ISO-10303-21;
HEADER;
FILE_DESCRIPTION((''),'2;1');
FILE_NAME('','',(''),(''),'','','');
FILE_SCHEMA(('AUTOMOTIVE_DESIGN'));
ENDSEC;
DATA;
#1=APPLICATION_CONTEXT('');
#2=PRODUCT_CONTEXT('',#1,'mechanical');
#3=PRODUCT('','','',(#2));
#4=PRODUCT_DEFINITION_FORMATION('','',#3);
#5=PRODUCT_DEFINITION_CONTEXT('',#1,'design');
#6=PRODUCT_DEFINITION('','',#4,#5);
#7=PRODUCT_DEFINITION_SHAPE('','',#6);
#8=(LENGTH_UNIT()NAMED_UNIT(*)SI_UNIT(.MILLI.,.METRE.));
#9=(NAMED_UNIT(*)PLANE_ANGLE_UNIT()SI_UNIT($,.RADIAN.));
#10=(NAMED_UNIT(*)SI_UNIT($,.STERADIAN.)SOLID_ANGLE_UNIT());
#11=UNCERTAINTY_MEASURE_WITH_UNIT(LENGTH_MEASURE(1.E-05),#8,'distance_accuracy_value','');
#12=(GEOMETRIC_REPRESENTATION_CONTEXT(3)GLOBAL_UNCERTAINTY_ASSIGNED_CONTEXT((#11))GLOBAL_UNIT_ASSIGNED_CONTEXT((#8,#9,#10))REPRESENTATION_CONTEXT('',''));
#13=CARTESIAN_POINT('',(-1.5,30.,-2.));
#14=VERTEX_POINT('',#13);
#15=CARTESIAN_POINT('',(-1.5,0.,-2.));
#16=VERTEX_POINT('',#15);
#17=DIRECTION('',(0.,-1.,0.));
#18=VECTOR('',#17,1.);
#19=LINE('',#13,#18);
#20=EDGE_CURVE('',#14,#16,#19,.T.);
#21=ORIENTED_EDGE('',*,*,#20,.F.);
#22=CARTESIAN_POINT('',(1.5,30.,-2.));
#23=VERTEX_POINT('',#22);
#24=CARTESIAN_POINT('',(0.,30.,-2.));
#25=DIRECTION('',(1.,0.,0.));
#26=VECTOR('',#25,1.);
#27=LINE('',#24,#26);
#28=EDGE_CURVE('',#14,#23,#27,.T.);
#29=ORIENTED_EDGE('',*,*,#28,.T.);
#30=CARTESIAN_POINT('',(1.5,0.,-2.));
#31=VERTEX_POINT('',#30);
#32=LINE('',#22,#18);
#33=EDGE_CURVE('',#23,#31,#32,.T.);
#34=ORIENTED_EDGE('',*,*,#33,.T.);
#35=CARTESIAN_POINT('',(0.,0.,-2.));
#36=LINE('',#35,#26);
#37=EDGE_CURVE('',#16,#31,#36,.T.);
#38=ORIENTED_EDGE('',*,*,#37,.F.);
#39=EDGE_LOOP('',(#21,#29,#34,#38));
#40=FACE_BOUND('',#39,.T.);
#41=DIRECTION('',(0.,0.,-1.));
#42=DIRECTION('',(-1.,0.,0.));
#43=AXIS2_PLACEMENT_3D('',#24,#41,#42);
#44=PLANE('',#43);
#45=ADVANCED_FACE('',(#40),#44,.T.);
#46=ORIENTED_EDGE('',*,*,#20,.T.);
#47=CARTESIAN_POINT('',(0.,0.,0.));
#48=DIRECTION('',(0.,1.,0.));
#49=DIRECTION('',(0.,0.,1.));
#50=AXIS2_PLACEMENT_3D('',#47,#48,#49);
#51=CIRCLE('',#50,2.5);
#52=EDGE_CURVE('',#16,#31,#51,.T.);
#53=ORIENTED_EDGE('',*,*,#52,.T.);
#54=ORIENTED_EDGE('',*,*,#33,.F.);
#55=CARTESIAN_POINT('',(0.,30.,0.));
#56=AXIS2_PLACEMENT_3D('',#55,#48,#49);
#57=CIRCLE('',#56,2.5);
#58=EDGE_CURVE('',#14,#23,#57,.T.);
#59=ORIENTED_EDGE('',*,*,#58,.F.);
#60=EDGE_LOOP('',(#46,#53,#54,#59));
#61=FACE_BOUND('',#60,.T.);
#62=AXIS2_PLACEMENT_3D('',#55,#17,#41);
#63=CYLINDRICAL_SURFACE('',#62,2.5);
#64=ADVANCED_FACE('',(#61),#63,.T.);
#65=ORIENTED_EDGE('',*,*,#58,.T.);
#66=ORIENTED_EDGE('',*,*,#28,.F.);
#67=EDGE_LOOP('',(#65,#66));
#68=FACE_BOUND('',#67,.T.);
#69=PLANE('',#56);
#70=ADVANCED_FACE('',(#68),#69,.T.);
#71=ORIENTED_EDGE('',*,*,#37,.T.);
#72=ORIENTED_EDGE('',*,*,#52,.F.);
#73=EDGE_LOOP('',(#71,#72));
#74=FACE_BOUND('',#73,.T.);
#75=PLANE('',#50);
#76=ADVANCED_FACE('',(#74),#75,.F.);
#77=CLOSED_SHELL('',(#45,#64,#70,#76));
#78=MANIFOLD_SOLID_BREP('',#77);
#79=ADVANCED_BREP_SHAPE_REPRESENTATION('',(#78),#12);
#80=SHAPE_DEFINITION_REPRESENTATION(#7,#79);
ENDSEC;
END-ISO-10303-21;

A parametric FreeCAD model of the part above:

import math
import FreeCAD as App
import Part
import Sketcher

doc = App.newDocument("Part")
body = doc.addObject("PartDesign::Body", "Body")

# Sketch on XZ plane
sketch1 = doc.addObject("Sketcher::SketchObject", "Sketch")
body.addObject(sketch1)
sketch1.AttachmentSupport = (doc.XZ_Plane, [""])
sketch1.MapMode = "FlatFace"
sketch1.addGeometry(Part.ArcOfCircle(Part.Circle(App.Vector(0, 0, 0), App.Vector(0, 0, 1), 2.5), math.radians(90), math.radians(233.130102)), False)
sketch1.addGeometry(Part.ArcOfCircle(Part.Circle(App.Vector(0, 0, 0), App.Vector(0, 0, 1), 2.5), math.radians(0), math.radians(90)), False)
sketch1.addGeometry(Part.ArcOfCircle(Part.Circle(App.Vector(0, 0, 0), App.Vector(0, 0, 1), 2.5), math.radians(-53.130102), math.radians(0)), False)
sketch1.addGeometry(Part.LineSegment(App.Vector(1.5, -2, 0), App.Vector(-1.5, -2, 0)), False)
sketch1.addConstraint(Sketcher.Constraint("Tangent", 0, 1, 1, 2))
sketch1.addConstraint(Sketcher.Constraint("Tangent", 1, 1, 2, 2))
sketch1.addConstraint(Sketcher.Constraint("Coincident", 2, 1, 3, 1))
sketch1.addConstraint(Sketcher.Constraint("Coincident", 3, 2, 0, 2))
sketch1.addConstraint(Sketcher.Constraint("Horizontal", 3))
sketch1.addConstraint(Sketcher.Constraint("Coincident", 0, 3, -1, 1))
sketch1.addConstraint(Sketcher.Constraint("Coincident", 2, 3, -1, 1))
sketch1.addConstraint(Sketcher.Constraint("PointOnObject", 0, 1, -2))
sketch1.addConstraint(Sketcher.Constraint("PointOnObject", 1, 1, -1))
sketch1.addConstraint(Sketcher.Constraint("Radius", 0, 2.5))
sketch1.addConstraint(Sketcher.Constraint("DistanceX", 3, 2, 3, 1, 3.0))
pad1 = doc.addObject("PartDesign::Pad", "Pad")
body.addObject(pad1)
pad1.Profile = sketch1
pad1.Length = 30
pad1.Reversed = True

doc.recompute()
